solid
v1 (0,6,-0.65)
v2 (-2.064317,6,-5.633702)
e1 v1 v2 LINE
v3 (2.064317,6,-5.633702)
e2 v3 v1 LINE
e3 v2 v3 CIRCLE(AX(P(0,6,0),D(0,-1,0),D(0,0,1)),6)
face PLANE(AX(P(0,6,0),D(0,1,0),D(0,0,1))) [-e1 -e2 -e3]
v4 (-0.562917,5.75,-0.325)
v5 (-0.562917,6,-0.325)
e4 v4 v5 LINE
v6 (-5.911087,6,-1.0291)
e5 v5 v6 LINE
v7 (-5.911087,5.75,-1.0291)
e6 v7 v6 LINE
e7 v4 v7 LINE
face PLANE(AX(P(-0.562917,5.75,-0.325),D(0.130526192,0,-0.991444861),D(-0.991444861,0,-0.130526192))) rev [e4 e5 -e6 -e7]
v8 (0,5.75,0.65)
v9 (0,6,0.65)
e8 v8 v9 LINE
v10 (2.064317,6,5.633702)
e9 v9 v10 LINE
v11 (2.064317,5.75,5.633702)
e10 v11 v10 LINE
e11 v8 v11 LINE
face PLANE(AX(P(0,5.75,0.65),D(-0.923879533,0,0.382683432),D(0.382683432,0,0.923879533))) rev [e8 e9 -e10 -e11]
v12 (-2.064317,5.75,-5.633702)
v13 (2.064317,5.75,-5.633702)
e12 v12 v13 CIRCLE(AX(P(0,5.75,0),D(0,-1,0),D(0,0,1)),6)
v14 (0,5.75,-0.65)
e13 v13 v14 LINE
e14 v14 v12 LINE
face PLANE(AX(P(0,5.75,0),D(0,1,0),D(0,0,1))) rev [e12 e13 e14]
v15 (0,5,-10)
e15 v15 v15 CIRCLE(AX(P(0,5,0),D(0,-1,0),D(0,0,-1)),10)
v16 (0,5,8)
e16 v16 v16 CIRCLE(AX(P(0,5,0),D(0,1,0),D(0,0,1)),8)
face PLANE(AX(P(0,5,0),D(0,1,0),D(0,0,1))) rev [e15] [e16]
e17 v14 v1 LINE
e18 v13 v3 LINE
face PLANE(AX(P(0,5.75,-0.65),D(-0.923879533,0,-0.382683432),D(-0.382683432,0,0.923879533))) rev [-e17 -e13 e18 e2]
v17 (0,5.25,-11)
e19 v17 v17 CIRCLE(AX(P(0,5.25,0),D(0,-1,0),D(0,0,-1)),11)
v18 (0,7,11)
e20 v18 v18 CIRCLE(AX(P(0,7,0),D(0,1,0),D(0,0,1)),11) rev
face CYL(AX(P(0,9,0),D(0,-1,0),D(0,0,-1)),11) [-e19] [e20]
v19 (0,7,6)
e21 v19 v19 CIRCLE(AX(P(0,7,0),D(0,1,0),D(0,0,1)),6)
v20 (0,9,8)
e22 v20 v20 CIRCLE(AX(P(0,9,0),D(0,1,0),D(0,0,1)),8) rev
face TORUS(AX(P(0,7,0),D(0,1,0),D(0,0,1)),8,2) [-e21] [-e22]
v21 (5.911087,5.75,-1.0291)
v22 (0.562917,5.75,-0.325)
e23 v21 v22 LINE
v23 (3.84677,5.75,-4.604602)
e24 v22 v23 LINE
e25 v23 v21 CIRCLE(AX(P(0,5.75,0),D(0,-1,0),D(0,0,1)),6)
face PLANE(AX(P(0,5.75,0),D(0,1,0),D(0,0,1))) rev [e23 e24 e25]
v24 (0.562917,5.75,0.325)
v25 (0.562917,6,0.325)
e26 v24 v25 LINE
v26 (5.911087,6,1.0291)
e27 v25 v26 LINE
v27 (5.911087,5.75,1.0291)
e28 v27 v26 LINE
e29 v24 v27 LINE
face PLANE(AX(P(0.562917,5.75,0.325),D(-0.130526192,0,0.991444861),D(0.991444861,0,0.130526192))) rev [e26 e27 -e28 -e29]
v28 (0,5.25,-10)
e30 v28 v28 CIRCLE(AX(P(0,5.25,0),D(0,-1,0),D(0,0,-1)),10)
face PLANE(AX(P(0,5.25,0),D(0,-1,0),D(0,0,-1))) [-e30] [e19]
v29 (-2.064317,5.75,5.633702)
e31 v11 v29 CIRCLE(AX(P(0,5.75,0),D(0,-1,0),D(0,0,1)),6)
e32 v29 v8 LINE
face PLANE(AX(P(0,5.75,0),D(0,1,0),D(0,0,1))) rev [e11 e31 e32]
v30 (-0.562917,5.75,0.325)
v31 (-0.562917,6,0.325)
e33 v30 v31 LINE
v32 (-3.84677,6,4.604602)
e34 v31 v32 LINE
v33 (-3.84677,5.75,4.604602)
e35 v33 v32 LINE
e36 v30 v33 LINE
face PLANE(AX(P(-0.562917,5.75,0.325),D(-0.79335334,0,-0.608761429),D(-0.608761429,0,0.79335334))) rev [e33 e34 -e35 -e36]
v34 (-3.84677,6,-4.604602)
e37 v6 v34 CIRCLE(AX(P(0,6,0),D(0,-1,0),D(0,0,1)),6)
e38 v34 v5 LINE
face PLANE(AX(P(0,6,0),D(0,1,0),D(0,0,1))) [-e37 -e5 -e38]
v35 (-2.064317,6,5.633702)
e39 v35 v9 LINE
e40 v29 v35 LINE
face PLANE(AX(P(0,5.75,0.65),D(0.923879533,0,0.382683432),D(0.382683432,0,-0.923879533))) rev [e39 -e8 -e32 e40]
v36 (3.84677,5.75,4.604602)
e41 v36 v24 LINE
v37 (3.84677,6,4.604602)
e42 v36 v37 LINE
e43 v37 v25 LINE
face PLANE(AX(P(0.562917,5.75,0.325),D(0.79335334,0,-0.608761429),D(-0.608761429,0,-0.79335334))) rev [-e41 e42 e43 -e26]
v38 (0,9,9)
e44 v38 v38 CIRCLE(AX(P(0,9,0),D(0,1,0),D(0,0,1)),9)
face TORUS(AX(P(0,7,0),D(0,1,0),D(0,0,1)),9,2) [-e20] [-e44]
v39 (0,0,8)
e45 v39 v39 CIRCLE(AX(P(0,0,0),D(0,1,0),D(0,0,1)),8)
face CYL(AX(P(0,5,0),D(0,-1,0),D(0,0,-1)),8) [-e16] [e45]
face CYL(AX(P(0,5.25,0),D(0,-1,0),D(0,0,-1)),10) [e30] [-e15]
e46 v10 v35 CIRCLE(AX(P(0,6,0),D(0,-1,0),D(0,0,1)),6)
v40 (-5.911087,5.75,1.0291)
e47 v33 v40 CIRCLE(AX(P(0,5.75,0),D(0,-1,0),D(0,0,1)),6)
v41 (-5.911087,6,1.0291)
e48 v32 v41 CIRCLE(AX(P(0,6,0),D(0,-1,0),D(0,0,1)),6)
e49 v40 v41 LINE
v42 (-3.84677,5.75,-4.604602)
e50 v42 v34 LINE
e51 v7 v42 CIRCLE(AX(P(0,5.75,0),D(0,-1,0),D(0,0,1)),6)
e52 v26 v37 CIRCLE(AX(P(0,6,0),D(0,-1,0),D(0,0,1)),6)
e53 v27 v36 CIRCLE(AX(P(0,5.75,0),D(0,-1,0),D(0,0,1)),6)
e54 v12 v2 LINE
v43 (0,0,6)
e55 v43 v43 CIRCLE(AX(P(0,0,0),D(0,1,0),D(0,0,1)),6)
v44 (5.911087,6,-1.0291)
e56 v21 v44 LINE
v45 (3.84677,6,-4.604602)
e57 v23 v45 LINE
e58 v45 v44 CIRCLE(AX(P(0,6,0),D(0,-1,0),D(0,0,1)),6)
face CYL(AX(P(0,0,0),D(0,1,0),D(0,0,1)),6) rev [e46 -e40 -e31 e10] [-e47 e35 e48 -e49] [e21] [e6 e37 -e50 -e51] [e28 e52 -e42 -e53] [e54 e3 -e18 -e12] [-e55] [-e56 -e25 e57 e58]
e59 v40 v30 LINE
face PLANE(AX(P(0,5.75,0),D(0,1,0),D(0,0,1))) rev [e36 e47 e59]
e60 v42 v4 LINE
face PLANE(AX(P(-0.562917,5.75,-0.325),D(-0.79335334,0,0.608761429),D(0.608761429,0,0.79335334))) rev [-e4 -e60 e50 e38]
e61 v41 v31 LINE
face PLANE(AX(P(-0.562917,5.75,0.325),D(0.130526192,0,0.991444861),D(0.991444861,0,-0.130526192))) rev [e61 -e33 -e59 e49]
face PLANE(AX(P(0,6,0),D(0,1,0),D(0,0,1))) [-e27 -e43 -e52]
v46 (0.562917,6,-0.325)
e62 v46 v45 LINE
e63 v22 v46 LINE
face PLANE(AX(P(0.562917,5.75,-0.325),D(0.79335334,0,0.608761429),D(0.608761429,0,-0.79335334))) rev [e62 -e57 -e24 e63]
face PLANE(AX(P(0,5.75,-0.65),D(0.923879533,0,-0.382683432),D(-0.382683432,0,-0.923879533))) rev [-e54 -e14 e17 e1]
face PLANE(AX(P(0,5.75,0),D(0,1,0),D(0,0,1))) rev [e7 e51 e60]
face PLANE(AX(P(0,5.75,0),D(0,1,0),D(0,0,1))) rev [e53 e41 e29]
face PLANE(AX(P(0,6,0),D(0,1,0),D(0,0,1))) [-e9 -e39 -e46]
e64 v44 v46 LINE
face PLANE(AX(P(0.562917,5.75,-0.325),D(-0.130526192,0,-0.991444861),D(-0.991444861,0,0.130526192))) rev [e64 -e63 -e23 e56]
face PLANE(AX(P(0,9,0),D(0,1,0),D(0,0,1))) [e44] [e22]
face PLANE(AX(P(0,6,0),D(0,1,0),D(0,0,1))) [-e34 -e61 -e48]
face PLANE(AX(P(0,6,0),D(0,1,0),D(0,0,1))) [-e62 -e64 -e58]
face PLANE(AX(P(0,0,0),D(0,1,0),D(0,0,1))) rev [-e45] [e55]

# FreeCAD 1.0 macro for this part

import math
import FreeCAD as App
import Part
import Sketcher
Q = App.Units.Quantity


def edges_at(feature, points):
    """Names of the edges that pass closest to the given points."""
    edges = feature.Shape.Edges
    near = lambda p: min(range(len(edges)), key=lambda i: edges[i].distToShape(Part.Vertex(*p))[0])
    return sorted({f"Edge{near(p) + 1}" for p in points})

doc = App.newDocument("Part")
body = doc.addObject("PartDesign::Body", "Body")

sketch1 = doc.addObject("Sketcher::SketchObject", "Sketch")
body.addObject(sketch1)
sketch1.AttachmentSupport = (doc.XZ_Plane, [""])
sketch1.MapMode = "FlatFace"
sketch1.addGeometry(Part.Circle(App.Vector(0, 0, 0), App.Vector(0, 0, 1), 8), False)
sketch1.addConstraint(Sketcher.Constraint("Coincident", 0, 3, -1, 1))
sketch1.addConstraint(Sketcher.Constraint("Diameter", 0, Q("16 mm")))
pad1 = doc.addObject("PartDesign::Pad", "Pad")
body.addObject(pad1)
pad1.Profile = sketch1
pad1.Length = 5
pad1.Reversed = True

sketch2 = doc.addObject("Sketcher::SketchObject", "Sketch001")
body.addObject(sketch2)
sketch2.AttachmentSupport = (doc.XZ_Plane, [""])
sketch2.MapMode = "FlatFace"
sketch2.AttachmentOffset = App.Placement(App.Vector(0, 0, -5), App.Rotation())
sketch2.addGeometry(Part.Circle(App.Vector(0, 0, 0), App.Vector(0, 0, 1), 11), False)
sketch2.addConstraint(Sketcher.Constraint("Coincident", 0, 3, -1, 1))
sketch2.addConstraint(Sketcher.Constraint("Diameter", 0, Q("22 mm")))
pad2 = doc.addObject("PartDesign::Pad", "Pad001")
body.addObject(pad2)
pad2.Profile = sketch2
pad2.Length = 4
pad2.Reversed = True

sketch3 = doc.addObject("Sketcher::SketchObject", "Sketch002")
body.addObject(sketch3)
sketch3.AttachmentSupport = (doc.XZ_Plane, [""])
sketch3.MapMode = "FlatFace"
sketch3.AttachmentOffset = App.Placement(App.Vector(0, 0, -9), App.Rotation())
sketch3.addGeometry(Part.Circle(App.Vector(0, 0, 0), App.Vector(0, 0, 1), 6), False)
sketch3.addConstraint(Sketcher.Constraint("Coincident", 0, 3, -1, 1))
sketch3.addConstraint(Sketcher.Constraint("Diameter", 0, Q("12 mm")))
pocket1 = doc.addObject("PartDesign::Pocket", "Pocket")
body.addObject(pocket1)
pocket1.Profile = sketch3
pocket1.Type = "ThroughAll"
pocket1.Reversed = True

sketch4 = doc.addObject("Sketcher::SketchObject", "Sketch003")
body.addObject(sketch4)
sketch4.AttachmentSupport = (doc.XZ_Plane, [""])
sketch4.MapMode = "FlatFace"
sketch4.AttachmentOffset = App.Placement(App.Vector(0, 0, -6), App.Rotation())
sketch4.addGeometry(Part.LineSegment(App.Vector(-2.1, 5.6, 0), App.Vector(0, 0.7, 0)), False)
sketch4.addGeometry(Part.LineSegment(App.Vector(0, 0.7, 0), App.Vector(2.1, 5.6, 0)), False)
sketch4.addGeometry(Part.ArcOfCircle(Part.Circle(App.Vector(0, 0, 0), App.Vector(0, 0, 1), 6), math.radians(70), math.radians(110)), False)
sketch4.addGeometry(Part.LineSegment(App.Vector(3.8, 4.6, 0), App.Vector(0.6, 0.3, 0)), False)
sketch4.addGeometry(Part.LineSegment(App.Vector(0.6, 0.3, 0), App.Vector(5.9, 1, 0)), False)
sketch4.addGeometry(Part.ArcOfCircle(Part.Circle(App.Vector(0, 0, 0), App.Vector(0, 0, 1), 6), math.radians(10), math.radians(50)), False)
sketch4.addGeometry(Part.LineSegment(App.Vector(5.9, -1, 0), App.Vector(0.6, -0.3, 0)), False)
sketch4.addGeometry(Part.LineSegment(App.Vector(0.6, -0.3, 0), App.Vector(3.8, -4.6, 0)), False)
sketch4.addGeometry(Part.ArcOfCircle(Part.Circle(App.Vector(0, 0, 0), App.Vector(0, 0, 1), 6), math.radians(-50), math.radians(-10)), False)
sketch4.addGeometry(Part.LineSegment(App.Vector(2.1, -5.6, 0), App.Vector(0, -0.7, 0)), False)
sketch4.addGeometry(Part.LineSegment(App.Vector(0, -0.7, 0), App.Vector(-2.1, -5.6, 0)), False)
sketch4.addGeometry(Part.ArcOfCircle(Part.Circle(App.Vector(0, 0, 0), App.Vector(0, 0, 1), 6), math.radians(-110), math.radians(-70)), False)
sketch4.addGeometry(Part.LineSegment(App.Vector(-3.8, -4.6, 0), App.Vector(-0.6, -0.3, 0)), False)
sketch4.addGeometry(Part.LineSegment(App.Vector(-0.6, -0.3, 0), App.Vector(-5.9, -1, 0)), False)
sketch4.addGeometry(Part.ArcOfCircle(Part.Circle(App.Vector(0, 0, 0), App.Vector(0, 0, 1), 6), math.radians(-170), math.radians(-130)), False)
sketch4.addGeometry(Part.LineSegment(App.Vector(-5.9, 1, 0), App.Vector(-0.6, 0.3, 0)), False)
sketch4.addGeometry(Part.LineSegment(App.Vector(-0.6, 0.3, 0), App.Vector(-3.8, 4.6, 0)), False)
sketch4.addGeometry(Part.ArcOfCircle(Part.Circle(App.Vector(0, 0, 0), App.Vector(0, 0, 1), 6), math.radians(130), math.radians(170)), False)
sketch4.addConstraint(Sketcher.Constraint("Coincident", 0, 2, 1, 1))
sketch4.addConstraint(Sketcher.Constraint("Coincident", 1, 2, 2, 1))
sketch4.addConstraint(Sketcher.Constraint("Coincident", 2, 2, 0, 1))
sketch4.addConstraint(Sketcher.Constraint("Coincident", 3, 2, 4, 1))
sketch4.addConstraint(Sketcher.Constraint("Coincident", 4, 2, 5, 1))
sketch4.addConstraint(Sketcher.Constraint("Coincident", 5, 2, 3, 1))
sketch4.addConstraint(Sketcher.Constraint("Coincident", 6, 2, 7, 1))
sketch4.addConstraint(Sketcher.Constraint("Coincident", 7, 2, 8, 1))
sketch4.addConstraint(Sketcher.Constraint("Coincident", 8, 2, 6, 1))
sketch4.addConstraint(Sketcher.Constraint("Coincident", 9, 2, 10, 1))
sketch4.addConstraint(Sketcher.Constraint("Coincident", 10, 2, 11, 1))
sketch4.addConstraint(Sketcher.Constraint("Coincident", 11, 2, 9, 1))
sketch4.addConstraint(Sketcher.Constraint("Coincident", 12, 2, 13, 1))
sketch4.addConstraint(Sketcher.Constraint("Coincident", 13, 2, 14, 1))
sketch4.addConstraint(Sketcher.Constraint("Coincident", 14, 2, 12, 1))
sketch4.addConstraint(Sketcher.Constraint("Coincident", 15, 2, 16, 1))
sketch4.addConstraint(Sketcher.Constraint("Coincident", 16, 2, 17, 1))
sketch4.addConstraint(Sketcher.Constraint("Coincident", 17, 2, 15, 1))
sketch4.addConstraint(Sketcher.Constraint("Coincident", 2, 3, -1, 1))
sketch4.addConstraint(Sketcher.Constraint("Coincident", 5, 3, -1, 1))
sketch4.addConstraint(Sketcher.Constraint("Coincident", 8, 3, -1, 1))
sketch4.addConstraint(Sketcher.Constraint("Coincident", 11, 3, -1, 1))
sketch4.addConstraint(Sketcher.Constraint("Coincident", 14, 3, -1, 1))
sketch4.addConstraint(Sketcher.Constraint("Coincident", 17, 3, -1, 1))
sketch4.addConstraint(Sketcher.Constraint("Equal", 2, 5))
sketch4.addConstraint(Sketcher.Constraint("Equal", 5, 8))
sketch4.addConstraint(Sketcher.Constraint("Equal", 8, 11))
sketch4.addConstraint(Sketcher.Constraint("Equal", 11, 14))
sketch4.addConstraint(Sketcher.Constraint("Equal", 14, 17))
sketch4.addConstraint(Sketcher.Constraint("Symmetric", 0, 2, 9, 2, -1, 1))
sketch4.addConstraint(Sketcher.Constraint("Symmetric", 3, 2, 12, 2, -1, 1))
sketch4.addConstraint(Sketcher.Constraint("Symmetric", 6, 2, 15, 2, -1, 1))
sketch4.addConstraint(Sketcher.Constraint("Symmetric", 6, 2, 12, 2, -2))
sketch4.addConstraint(Sketcher.Constraint("PointOnObject", 0, 2, -2))
sketch4.addConstraint(Sketcher.Constraint("Parallel", 0, 9))
sketch4.addConstraint(Sketcher.Constraint("Parallel", 1, 10))
sketch4.addConstraint(Sketcher.Constraint("Parallel", 3, 12))
sketch4.addConstraint(Sketcher.Constraint("Parallel", 4, 13))
sketch4.addConstraint(Sketcher.Constraint("Parallel", 6, 15))
sketch4.addConstraint(Sketcher.Constraint("Parallel", 7, 16))
sketch4.addConstraint(Sketcher.Constraint("Horizontal", 1, 2, 2, 2))
sketch4.addConstraint(Sketcher.Constraint("Horizontal", 8, 2, 13, 2))
sketch4.addConstraint(Sketcher.Constraint("Horizontal", 7, 2, 14, 2))
sketch4.addConstraint(Sketcher.Constraint("Equal", 1, 3))
sketch4.addConstraint(Sketcher.Constraint("Equal", 3, 4))
sketch4.addConstraint(Sketcher.Constraint("Radius", 2, Q("6 mm")))
sketch4.addConstraint(Sketcher.Constraint("Angle", 0, Q("-67.5 deg")))
sketch4.addConstraint(Sketcher.Constraint("Angle", 3, Q("-127.5 deg")))
sketch4.addConstraint(Sketcher.Constraint("Angle", 4, Q("7.5 deg")))
sketch4.addConstraint(Sketcher.Constraint("DistanceY", -1, 1, 0, 2, Q("0.65 mm")))
pad3 = doc.addObject("PartDesign::Pad", "Pad002")
body.addObject(pad3)
pad3.Profile = sketch4
pad3.Length = 0.25

sketch5 = doc.addObject("Sketcher::SketchObject", "Sketch004")
body.addObject(sketch5)
sketch5.AttachmentSupport = (doc.XZ_Plane, [""])
sketch5.MapMode = "FlatFace"
sketch5.AttachmentOffset = App.Placement(App.Vector(0, 0, -5), App.Rotation())
sketch5.addGeometry(Part.Circle(App.Vector(0, 0, 0), App.Vector(0, 0, 1), 11), False)
sketch5.addGeometry(Part.Circle(App.Vector(0, 0, 0), App.Vector(0, 0, 1), 10), False)
sketch5.addConstraint(Sketcher.Constraint("Coincident", 0, 3, -1, 1))
sketch5.addConstraint(Sketcher.Constraint("Coincident", 1, 3, -1, 1))
sketch5.addConstraint(Sketcher.Constraint("Diameter", 0, Q("22 mm")))
sketch5.addConstraint(Sketcher.Constraint("Diameter", 1, Q("20 mm")))
pocket2 = doc.addObject("PartDesign::Pocket", "Pocket001")
body.addObject(pocket2)
pocket2.Profile = sketch5
pocket2.Length = 0.25
doc.recompute()

fillet = doc.addObject("PartDesign::Fillet", "Fillet")
body.addObject(fillet)
fillet.Base = (pocket2, edges_at(pocket2, [(0, 9, -6), (0, 9, -11)]))
fillet.Radius = 2

doc.recompute()
